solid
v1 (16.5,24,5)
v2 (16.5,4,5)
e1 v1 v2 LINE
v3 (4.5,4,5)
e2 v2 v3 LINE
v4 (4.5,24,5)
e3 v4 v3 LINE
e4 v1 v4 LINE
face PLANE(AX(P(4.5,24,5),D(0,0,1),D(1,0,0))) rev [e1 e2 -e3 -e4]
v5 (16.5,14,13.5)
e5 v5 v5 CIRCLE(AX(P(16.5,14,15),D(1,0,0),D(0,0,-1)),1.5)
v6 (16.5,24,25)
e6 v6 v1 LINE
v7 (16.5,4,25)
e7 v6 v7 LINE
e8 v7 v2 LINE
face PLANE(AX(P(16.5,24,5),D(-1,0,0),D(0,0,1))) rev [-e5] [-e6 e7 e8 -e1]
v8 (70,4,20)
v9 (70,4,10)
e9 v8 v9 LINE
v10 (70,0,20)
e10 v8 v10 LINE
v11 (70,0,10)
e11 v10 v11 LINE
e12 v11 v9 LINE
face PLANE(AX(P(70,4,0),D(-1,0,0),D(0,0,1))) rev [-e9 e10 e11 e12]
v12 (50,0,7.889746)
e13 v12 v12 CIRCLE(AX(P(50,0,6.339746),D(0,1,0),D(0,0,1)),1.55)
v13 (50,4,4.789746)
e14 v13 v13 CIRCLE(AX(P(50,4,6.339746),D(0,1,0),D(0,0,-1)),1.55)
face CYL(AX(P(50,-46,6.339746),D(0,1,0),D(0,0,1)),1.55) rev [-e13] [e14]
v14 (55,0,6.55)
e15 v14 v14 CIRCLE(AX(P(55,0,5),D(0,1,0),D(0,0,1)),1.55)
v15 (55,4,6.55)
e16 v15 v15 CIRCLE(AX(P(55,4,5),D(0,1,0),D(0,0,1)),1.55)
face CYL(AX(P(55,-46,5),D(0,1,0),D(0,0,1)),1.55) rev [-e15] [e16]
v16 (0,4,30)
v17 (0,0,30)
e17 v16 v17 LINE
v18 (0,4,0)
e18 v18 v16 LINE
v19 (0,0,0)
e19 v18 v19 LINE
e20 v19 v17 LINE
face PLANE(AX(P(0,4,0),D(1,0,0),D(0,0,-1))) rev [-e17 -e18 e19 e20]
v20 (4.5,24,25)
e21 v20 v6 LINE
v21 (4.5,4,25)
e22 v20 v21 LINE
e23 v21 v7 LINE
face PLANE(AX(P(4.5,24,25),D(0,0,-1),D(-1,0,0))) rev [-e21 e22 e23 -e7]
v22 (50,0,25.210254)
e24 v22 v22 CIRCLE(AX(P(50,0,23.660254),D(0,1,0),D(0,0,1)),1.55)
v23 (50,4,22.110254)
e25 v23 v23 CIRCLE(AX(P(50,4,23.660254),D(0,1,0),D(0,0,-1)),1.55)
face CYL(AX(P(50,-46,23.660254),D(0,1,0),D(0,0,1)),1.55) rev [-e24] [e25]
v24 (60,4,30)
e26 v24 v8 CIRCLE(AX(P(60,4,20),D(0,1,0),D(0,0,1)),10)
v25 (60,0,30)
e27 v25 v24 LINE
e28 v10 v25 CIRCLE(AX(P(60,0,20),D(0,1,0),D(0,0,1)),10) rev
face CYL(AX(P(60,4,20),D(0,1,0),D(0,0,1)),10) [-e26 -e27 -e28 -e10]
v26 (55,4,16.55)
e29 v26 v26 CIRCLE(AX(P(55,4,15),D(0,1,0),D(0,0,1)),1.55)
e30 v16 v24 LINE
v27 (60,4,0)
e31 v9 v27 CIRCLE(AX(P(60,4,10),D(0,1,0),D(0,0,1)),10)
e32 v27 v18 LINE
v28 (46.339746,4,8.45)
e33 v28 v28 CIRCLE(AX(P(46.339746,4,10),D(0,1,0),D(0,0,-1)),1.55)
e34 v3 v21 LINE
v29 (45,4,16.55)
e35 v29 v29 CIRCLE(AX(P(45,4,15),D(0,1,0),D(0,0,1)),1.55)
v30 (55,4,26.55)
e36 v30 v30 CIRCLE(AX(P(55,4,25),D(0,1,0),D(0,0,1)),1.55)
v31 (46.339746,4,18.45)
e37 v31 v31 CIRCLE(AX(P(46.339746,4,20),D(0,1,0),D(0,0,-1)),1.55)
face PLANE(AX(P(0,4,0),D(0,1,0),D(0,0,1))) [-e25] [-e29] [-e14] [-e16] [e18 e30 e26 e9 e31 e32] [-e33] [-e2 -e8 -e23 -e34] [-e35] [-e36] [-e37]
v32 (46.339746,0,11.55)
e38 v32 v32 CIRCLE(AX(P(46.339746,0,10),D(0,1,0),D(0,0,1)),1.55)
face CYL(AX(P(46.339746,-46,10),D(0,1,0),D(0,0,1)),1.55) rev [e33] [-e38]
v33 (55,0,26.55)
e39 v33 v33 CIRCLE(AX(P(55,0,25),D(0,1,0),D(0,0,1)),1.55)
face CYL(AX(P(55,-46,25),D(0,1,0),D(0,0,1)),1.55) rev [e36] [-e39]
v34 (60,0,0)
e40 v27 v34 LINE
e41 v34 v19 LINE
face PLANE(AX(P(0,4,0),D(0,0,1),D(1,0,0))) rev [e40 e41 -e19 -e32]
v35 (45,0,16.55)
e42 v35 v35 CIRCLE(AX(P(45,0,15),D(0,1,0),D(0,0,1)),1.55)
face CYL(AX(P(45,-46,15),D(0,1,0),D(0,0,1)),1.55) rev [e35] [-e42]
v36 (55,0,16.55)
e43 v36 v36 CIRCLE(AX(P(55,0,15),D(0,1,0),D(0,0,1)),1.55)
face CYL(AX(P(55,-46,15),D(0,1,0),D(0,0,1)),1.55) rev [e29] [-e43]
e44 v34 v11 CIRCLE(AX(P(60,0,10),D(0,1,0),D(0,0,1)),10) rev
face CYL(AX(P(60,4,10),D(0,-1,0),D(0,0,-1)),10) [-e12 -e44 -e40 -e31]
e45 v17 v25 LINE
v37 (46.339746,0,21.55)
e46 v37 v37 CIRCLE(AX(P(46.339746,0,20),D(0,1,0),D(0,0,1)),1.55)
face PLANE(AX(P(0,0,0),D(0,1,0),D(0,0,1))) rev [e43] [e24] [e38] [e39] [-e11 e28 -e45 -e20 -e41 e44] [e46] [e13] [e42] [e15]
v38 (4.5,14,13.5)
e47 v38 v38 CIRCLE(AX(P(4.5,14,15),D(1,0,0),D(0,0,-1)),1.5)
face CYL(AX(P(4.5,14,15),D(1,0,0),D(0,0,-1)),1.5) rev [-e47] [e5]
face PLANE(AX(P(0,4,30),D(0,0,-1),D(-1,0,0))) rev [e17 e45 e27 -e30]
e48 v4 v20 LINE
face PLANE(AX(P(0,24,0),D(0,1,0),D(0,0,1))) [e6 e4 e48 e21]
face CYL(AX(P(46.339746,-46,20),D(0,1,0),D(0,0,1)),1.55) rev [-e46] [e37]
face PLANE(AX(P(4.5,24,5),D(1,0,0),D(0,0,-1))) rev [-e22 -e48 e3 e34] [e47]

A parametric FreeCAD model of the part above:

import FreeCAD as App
import Part
import Sketcher

V = App.Vector


def edges_at(feature, points):
    """Names of the edges that pass closest to the given points."""
    edges = feature.Shape.Edges
    near = lambda p: min(range(len(edges)), key=lambda i: edges[i].distToShape(Part.Vertex(*p))[0])
    return sorted({f"Edge{near(p) + 1}" for p in points})

doc = App.newDocument("Part")
params = doc.addObject("Spreadsheet::Sheet", "Params")
for row, (alias, value) in enumerate([
    ("sketch1_width", "70 mm"),
    ("sketch1_height", "30 mm"),
    ("pad1_length", "4 mm"),
    ("sketch2_width", "12 mm"),
    ("sketch2_height", "20 mm"),
    ("pad2_length", "20 mm"),
    ("sketch3_diameter", "3 mm"),
    ("pocket1_length", "12 mm"),
    ("sketch4_diameter", "3.1 mm"),
    ("pocket2_length", "50 mm"),
    ("fillet_radius", "10 mm"),
    ("fillet2_radius", "10 mm"),
], start=1):
    params.set(f"A{row}", alias)
    params.set(f"B{row}", "=" + value)
    params.setAlias(f"B{row}", alias)

body = doc.addObject("PartDesign::Body", "Body")

# Sketch on XZ plane
sketch1 = body.newObject("Sketcher::SketchObject", "Sketch")
sketch1.AttachmentSupport = (doc.getObject("XZ_Plane"), [""])
sketch1.MapMode = "FlatFace"
sketch1.addGeometry(Part.LineSegment(V(0, 0, 0), V(0, 30, 0)), False)
sketch1.addGeometry(Part.LineSegment(V(0, 30, 0), V(70, 30, 0)), False)
sketch1.addGeometry(Part.LineSegment(V(70, 30, 0), V(70, 0, 0)), False)
sketch1.addGeometry(Part.LineSegment(V(70, 0, 0), V(0, 0, 0)), False)
sketch1.addConstraint(Sketcher.Constraint("Coincident", 0, 2, 1, 1))
sketch1.addConstraint(Sketcher.Constraint("Coincident", 1, 2, 2, 1))
sketch1.addConstraint(Sketcher.Constraint("Coincident", 2, 2, 3, 1))
sketch1.addConstraint(Sketcher.Constraint("Coincident", 3, 2, 0, 1))
sketch1.addConstraint(Sketcher.Constraint("Vertical", 0))
sketch1.addConstraint(Sketcher.Constraint("Horizontal", 1))
sketch1.addConstraint(Sketcher.Constraint("Vertical", 2))
sketch1.addConstraint(Sketcher.Constraint("Horizontal", 3))
sketch1.addConstraint(Sketcher.Constraint("Coincident", 3, 2, -1, 1))
sketch1.addConstraint(Sketcher.Constraint("DistanceX", 1, 1, 1, 2, 70.0))
sketch1.addConstraint(Sketcher.Constraint("DistanceY", 0, 1, 0, 2, 30.0))
sketch1.setExpression("Constraints[9]", "Params.sketch1_width")
sketch1.setExpression("Constraints[10]", "Params.sketch1_height")
pad1 = body.newObject("PartDesign::Pad", "Pad")
pad1.Profile = sketch1
pad1.setExpression("Length", "Params.pad1_length")
pad1.Reversed = True

# Sketch on XZ plane
sketch2 = body.newObject("Sketcher::SketchObject", "Sketch001")
sketch2.AttachmentSupport = (doc.getObject("XZ_Plane"), [""])
sketch2.MapMode = "FlatFace"
sketch2.AttachmentOffset = App.Placement(V(0, 0, -4), App.Rotation())
sketch2.addGeometry(Part.LineSegment(V(4.5, 5, 0), V(4.5, 25, 0)), False)
sketch2.addGeometry(Part.LineSegment(V(4.5, 25, 0), V(16.5, 25, 0)), False)
sketch2.addGeometry(Part.LineSegment(V(16.5, 25, 0), V(16.5, 5, 0)), False)
sketch2.addGeometry(Part.LineSegment(V(16.5, 5, 0), V(4.5, 5, 0)), False)
sketch2.addConstraint(Sketcher.Constraint("Coincident", 0, 2, 1, 1))
sketch2.addConstraint(Sketcher.Constraint("Coincident", 1, 2, 2, 1))
sketch2.addConstraint(Sketcher.Constraint("Coincident", 2, 2, 3, 1))
sketch2.addConstraint(Sketcher.Constraint("Coincident", 3, 2, 0, 1))
sketch2.addConstraint(Sketcher.Constraint("Vertical", 0))
sketch2.addConstraint(Sketcher.Constraint("Horizontal", 1))
sketch2.addConstraint(Sketcher.Constraint("Vertical", 2))
sketch2.addConstraint(Sketcher.Constraint("Horizontal", 3))
sketch2.addConstraint(Sketcher.Constraint("DistanceX", 1, 1, 1, 2, 12.0))
sketch2.addConstraint(Sketcher.Constraint("DistanceY", 0, 1, 0, 2, 20.0))
sketch2.addConstraint(Sketcher.Constraint("DistanceY", -1, 1, 0, 2, 25.0))
sketch2.addConstraint(Sketcher.Constraint("DistanceX", -1, 1, 0, 2, 4.5))
sketch2.setExpression("Constraints[8]", "Params.sketch2_width")
sketch2.setExpression("Constraints[9]", "Params.sketch2_height")
pad2 = body.newObject("PartDesign::Pad", "Pad001")
pad2.Profile = sketch2
pad2.setExpression("Length", "Params.pad2_length")
pad2.Reversed = True

# Sketch on YZ plane
sketch3 = body.newObject("Sketcher::SketchObject", "Sketch002")
sketch3.AttachmentSupport = (doc.getObject("YZ_Plane"), [""])
sketch3.MapMode = "FlatFace"
sketch3.AttachmentOffset = App.Placement(V(0, 0, 16.5), App.Rotation())
sketch3.addGeometry(Part.Circle(V(14, 15, 0), V(0, 0, 1), 1.5), False)
sketch3.addConstraint(Sketcher.Constraint("Diameter", 0, 3.0))
sketch3.addConstraint(Sketcher.Constraint("DistanceX", -1, 1, 0, 3, 14.0))
sketch3.addConstraint(Sketcher.Constraint("DistanceY", -1, 1, 0, 3, 15.0))
sketch3.setExpression("Constraints[0]", "Params.sketch3_diameter")
pocket1 = body.newObject("PartDesign::Pocket", "Pocket")
pocket1.Profile = sketch3
pocket1.setExpression("Length", "Params.pocket1_length")

# Sketch on XZ plane
sketch4 = body.newObject("Sketcher::SketchObject", "Sketch003")
sketch4.AttachmentSupport = (doc.getObject("XZ_Plane"), [""])
sketch4.MapMode = "FlatFace"
sketch4.AttachmentOffset = App.Placement(V(0, 0, -4), App.Rotation())
sketch4.addGeometry(Part.Circle(V(55, 15, 0), V(0, 0, 1), 1.55), False)
sketch4.addGeometry(Part.Circle(V(50, 23.660254, 0), V(0, 0, 1), 1.55), False)
sketch4.addGeometry(Part.Circle(V(46.339746, 20, 0), V(0, 0, 1), 1.55), False)
sketch4.addGeometry(Part.Circle(V(46.339746, 10, 0), V(0, 0, 1), 1.55), False)
sketch4.addGeometry(Part.Circle(V(50, 6.339746, 0), V(0, 0, 1), 1.55), False)
sketch4.addGeometry(Part.Circle(V(45, 15, 0), V(0, 0, 1), 1.55), False)
sketch4.addGeometry(Part.Circle(V(55, 5, 0), V(0, 0, 1), 1.55), False)
sketch4.addGeometry(Part.Circle(V(55, 25, 0), V(0, 0, 1), 1.55), False)
sketch4.addConstraint(Sketcher.Constraint("Equal", 0, 1))
sketch4.addConstraint(Sketcher.Constraint("Equal", 1, 2))
sketch4.addConstraint(Sketcher.Constraint("Equal", 2, 3))
sketch4.addConstraint(Sketcher.Constraint("Equal", 3, 4))
sketch4.addConstraint(Sketcher.Constraint("Equal", 4, 5))
sketch4.addConstraint(Sketcher.Constraint("Equal", 5, 6))
sketch4.addConstraint(Sketcher.Constraint("Equal", 6, 7))
sketch4.addConstraint(Sketcher.Constraint("Horizontal", 0, 3, 5, 3))
sketch4.addConstraint(Sketcher.Constraint("Vertical", 2, 3, 3, 3))
sketch4.addConstraint(Sketcher.Constraint("Vertical", 1, 3, 4, 3))
sketch4.addConstraint(Sketcher.Constraint("Vertical", 0, 3, 6, 3))
sketch4.addConstraint(Sketcher.Constraint("Vertical", 6, 3, 7, 3))
sketch4.addConstraint(Sketcher.Constraint("Diameter", 0, 3.1))
sketch4.addConstraint(Sketcher.Constraint("DistanceX", -1, 1, 0, 3, 55.0))
sketch4.addConstraint(Sketcher.Constraint("DistanceY", -1, 1, 0, 3, 15.0))
sketch4.addConstraint(Sketcher.Constraint("DistanceX", -1, 1, 1, 3, 50.0))
sketch4.addConstraint(Sketcher.Constraint("DistanceY", -1, 1, 2, 3, 20.0))
sketch4.addConstraint(Sketcher.Constraint("DistanceY", -1, 1, 3, 3, 10.0))
sketch4.addConstraint(Sketcher.Constraint("DistanceX", -1, 1, 5, 3, 45.0))
sketch4.addConstraint(Sketcher.Constraint("DistanceY", -1, 1, 6, 3, 5.0))
sketch4.addConstraint(Sketcher.Constraint("DistanceY", -1, 1, 7, 3, 25.0))
sketch4.addConstraint(Sketcher.Constraint("DistanceY", 4, 3, 1, 3, 17.320508))
sketch4.addConstraint(Sketcher.Constraint("DistanceY", -1, 1, 1, 3, 23.660254))
sketch4.addConstraint(Sketcher.Constraint("DistanceX", -1, 1, 2, 3, 46.339746))
sketch4.setExpression("Constraints[12]", "Params.sketch4_diameter")
pocket2 = body.newObject("PartDesign::Pocket", "Pocket001")
pocket2.Profile = sketch4
pocket2.setExpression("Length", "Params.pocket2_length")
pocket2.Reversed = True
doc.recompute()

fillet = body.newObject("PartDesign::Fillet", "Fillet")
fillet.Base = (pocket2, edges_at(pocket2, [(70, 2, 30)]))
fillet.setExpression("Radius", "Params.fillet_radius")
doc.recompute()

fillet2 = body.newObject("PartDesign::Fillet", "Fillet001")
fillet2.Base = (fillet, edges_at(fillet, [(70, 2, 0)]))
fillet2.setExpression("Radius", "Params.fillet2_radius")

doc.recompute()
